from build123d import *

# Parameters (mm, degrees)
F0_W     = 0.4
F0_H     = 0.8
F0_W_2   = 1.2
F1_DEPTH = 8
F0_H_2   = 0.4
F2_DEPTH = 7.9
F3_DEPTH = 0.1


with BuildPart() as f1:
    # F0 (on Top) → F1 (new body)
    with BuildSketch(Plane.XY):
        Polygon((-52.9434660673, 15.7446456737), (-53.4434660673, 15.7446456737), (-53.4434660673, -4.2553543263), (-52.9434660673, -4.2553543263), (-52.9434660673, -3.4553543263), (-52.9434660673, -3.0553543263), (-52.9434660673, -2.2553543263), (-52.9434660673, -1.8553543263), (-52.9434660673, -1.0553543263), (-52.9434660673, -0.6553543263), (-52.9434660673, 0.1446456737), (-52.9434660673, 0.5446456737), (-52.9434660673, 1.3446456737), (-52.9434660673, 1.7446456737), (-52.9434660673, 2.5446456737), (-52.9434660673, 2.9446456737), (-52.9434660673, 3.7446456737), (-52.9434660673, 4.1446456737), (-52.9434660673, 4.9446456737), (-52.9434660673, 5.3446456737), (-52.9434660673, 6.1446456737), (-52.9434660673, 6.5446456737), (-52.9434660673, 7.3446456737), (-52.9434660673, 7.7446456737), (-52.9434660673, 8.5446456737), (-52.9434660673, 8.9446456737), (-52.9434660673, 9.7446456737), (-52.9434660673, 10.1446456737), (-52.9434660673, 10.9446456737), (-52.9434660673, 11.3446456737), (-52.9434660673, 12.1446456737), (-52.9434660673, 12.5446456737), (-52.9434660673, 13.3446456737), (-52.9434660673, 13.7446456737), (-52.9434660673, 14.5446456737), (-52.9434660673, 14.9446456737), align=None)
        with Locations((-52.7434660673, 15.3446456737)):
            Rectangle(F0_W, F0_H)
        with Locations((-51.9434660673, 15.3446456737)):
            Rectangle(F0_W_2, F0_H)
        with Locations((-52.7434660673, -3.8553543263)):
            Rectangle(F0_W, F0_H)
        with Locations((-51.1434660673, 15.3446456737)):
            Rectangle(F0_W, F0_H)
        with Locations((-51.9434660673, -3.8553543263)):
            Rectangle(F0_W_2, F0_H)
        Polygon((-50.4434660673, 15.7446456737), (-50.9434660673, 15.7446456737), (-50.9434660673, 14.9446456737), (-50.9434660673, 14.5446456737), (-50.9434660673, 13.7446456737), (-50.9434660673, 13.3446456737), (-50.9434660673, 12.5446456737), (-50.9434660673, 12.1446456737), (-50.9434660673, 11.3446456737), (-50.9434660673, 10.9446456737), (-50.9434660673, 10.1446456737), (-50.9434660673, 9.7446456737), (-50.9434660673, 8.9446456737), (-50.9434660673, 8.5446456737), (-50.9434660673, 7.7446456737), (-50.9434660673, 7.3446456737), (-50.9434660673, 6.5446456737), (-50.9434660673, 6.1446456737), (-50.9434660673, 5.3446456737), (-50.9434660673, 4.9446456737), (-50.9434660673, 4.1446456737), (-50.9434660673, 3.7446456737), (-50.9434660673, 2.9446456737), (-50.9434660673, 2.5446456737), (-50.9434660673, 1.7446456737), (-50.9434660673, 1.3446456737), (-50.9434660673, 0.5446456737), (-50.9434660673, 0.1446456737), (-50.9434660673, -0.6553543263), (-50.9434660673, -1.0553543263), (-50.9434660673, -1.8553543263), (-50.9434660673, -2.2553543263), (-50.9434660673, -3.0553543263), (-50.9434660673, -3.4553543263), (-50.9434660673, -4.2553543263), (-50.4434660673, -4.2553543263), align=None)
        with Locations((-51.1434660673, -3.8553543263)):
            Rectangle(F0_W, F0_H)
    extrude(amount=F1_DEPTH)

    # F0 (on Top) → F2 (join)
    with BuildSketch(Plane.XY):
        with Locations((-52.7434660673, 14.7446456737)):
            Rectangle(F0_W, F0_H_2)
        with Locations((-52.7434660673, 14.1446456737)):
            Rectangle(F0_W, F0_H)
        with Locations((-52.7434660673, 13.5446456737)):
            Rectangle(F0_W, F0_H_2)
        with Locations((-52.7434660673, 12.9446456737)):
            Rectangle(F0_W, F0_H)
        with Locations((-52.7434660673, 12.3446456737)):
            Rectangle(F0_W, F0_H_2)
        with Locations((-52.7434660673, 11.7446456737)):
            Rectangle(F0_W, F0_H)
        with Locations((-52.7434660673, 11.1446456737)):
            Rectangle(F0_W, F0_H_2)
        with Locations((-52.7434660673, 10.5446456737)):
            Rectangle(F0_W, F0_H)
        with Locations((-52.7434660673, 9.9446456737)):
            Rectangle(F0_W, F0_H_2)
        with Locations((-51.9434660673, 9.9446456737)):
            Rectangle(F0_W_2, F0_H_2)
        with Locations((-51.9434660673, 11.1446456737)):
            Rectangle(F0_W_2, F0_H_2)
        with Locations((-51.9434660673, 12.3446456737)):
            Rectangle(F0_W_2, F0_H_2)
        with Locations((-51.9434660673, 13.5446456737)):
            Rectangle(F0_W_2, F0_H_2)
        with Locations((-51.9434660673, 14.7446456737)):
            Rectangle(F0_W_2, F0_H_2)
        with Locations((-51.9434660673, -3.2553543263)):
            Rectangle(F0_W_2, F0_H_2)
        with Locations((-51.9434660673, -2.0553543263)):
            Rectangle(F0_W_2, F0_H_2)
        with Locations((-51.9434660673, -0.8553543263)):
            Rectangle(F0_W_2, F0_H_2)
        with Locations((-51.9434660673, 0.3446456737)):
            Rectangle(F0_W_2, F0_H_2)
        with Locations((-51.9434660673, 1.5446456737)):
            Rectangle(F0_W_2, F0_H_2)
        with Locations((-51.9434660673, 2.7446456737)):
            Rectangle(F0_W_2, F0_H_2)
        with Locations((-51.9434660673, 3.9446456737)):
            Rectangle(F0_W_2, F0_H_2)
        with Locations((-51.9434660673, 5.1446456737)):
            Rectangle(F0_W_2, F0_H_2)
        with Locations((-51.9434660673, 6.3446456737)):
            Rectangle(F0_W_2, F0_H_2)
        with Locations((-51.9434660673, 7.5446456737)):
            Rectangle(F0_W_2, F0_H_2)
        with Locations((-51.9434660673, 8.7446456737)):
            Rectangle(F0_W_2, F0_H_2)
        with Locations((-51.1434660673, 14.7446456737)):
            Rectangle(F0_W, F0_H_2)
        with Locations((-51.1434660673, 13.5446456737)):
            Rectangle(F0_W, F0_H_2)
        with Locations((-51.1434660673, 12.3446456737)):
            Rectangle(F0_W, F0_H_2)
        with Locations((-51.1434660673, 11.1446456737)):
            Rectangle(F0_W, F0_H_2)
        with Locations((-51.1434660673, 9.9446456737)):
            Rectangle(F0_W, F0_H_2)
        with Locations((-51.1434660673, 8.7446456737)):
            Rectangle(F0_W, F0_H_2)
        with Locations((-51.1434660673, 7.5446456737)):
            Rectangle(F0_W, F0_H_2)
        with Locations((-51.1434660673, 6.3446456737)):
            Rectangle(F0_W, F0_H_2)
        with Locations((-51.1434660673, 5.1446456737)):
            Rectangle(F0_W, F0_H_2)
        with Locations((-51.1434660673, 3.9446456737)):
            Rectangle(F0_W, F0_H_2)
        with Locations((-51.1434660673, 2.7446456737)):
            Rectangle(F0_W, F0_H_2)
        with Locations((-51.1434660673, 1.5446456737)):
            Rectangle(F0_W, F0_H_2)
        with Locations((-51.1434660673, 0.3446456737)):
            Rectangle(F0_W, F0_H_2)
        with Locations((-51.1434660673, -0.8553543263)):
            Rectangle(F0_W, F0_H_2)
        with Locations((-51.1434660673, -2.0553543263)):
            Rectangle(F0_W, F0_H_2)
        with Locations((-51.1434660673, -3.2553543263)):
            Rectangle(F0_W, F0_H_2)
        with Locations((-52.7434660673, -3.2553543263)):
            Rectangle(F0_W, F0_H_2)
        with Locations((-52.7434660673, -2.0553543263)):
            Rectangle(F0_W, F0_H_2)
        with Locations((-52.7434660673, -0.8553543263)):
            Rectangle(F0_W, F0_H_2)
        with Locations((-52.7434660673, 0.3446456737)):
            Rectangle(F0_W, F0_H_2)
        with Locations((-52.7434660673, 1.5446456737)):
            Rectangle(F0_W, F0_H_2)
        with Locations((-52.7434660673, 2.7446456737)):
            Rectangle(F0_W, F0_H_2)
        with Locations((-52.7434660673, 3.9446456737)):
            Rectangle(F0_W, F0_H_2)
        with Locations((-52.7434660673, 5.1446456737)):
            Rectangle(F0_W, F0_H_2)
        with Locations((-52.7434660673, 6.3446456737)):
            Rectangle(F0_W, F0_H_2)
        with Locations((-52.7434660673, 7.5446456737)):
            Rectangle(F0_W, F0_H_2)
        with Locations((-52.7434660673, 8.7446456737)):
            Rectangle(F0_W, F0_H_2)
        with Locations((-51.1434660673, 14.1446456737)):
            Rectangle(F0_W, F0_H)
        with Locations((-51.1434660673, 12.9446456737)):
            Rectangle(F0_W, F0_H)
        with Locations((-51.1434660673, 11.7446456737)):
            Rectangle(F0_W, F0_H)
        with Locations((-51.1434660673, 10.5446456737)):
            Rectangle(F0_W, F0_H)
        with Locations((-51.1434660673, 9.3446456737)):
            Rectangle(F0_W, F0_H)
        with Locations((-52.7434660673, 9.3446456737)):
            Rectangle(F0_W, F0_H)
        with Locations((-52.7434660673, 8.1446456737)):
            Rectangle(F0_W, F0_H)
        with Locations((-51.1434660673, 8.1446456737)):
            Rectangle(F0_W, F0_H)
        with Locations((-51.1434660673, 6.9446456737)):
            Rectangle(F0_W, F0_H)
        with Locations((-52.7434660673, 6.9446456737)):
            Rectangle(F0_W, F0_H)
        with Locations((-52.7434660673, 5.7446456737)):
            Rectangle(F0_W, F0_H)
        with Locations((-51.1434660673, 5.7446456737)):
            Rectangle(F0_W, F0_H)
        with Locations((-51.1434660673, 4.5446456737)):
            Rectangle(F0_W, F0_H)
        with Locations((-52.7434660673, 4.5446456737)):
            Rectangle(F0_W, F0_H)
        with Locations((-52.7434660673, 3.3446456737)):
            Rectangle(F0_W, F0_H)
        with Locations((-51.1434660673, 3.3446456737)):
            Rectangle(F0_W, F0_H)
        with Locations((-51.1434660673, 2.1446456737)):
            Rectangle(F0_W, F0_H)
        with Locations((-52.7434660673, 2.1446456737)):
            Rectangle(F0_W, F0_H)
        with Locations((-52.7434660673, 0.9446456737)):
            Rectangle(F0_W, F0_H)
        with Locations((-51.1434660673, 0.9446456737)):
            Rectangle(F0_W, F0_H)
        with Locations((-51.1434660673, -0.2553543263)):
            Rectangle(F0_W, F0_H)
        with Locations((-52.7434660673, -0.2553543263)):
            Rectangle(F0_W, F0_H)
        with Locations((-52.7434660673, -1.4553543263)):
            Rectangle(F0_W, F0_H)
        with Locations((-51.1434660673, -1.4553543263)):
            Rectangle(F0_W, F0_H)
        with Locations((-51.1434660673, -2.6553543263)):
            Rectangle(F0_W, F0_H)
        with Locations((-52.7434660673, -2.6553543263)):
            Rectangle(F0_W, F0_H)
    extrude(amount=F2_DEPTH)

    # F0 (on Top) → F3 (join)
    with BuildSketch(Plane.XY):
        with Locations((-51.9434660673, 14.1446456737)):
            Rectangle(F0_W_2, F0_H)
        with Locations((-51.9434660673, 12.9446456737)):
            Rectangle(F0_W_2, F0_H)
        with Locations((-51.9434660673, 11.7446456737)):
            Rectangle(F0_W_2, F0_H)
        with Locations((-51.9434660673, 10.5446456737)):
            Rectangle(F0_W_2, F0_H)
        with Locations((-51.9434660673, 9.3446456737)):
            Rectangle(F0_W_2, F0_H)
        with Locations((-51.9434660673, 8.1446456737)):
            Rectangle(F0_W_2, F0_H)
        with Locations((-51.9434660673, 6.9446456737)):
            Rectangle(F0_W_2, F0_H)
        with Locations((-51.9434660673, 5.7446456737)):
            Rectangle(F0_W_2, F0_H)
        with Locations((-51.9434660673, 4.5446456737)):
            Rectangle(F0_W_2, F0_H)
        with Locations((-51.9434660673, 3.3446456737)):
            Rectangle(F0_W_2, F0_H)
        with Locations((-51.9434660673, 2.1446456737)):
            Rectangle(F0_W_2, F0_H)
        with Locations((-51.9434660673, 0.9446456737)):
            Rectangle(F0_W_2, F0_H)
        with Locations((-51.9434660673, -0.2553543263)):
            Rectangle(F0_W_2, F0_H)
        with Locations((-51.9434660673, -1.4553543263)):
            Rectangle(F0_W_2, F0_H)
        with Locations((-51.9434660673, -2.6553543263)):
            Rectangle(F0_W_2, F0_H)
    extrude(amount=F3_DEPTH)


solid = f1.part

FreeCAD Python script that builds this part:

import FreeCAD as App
import Part
import Sketcher
from FreeCAD import Vector
Q = App.Units.Quantity

doc = App.newDocument("Part")
body = doc.addObject("PartDesign::Body", "Body")

sketch1 = body.newObject("Sketcher::SketchObject", "Sketch")
sketch1.AttachmentSupport = (doc.getObject("XY_Plane"), [""])
sketch1.MapMode = "FlatFace"
sketch1.addGeometry([
    Part.LineSegment(Vector(-53.4, 15.7, 0), Vector(-53.4, -4.3, 0)),
    Part.LineSegment(Vector(-53.4, -4.3, 0), Vector(-50.4, -4.3, 0)),
    Part.LineSegment(Vector(-50.4, -4.3, 0), Vector(-50.4, 15.7, 0)),
    Part.LineSegment(Vector(-50.4, 15.7, 0), Vector(-53.4, 15.7, 0)),
    Part.LineSegment(Vector(-52.9, -3.5, 0), Vector(-52.9, 14.9, 0)),
    Part.LineSegment(Vector(-52.9, 14.9, 0), Vector(-50.9, 14.9, 0)),
    Part.LineSegment(Vector(-50.9, 14.9, 0), Vector(-50.9, -3.5, 0)),
    Part.LineSegment(Vector(-50.9, -3.5, 0), Vector(-52.9, -3.5, 0)),
], False)
sketch1.addConstraint([
    Sketcher.Constraint("Coincident", 0, 2, 1, 1),
    Sketcher.Constraint("Coincident", 1, 2, 2, 1),
    Sketcher.Constraint("Coincident", 2, 2, 3, 1),
    Sketcher.Constraint("Coincident", 3, 2, 0, 1),
    Sketcher.Constraint("Coincident", 4, 2, 5, 1),
    Sketcher.Constraint("Coincident", 5, 2, 6, 1),
    Sketcher.Constraint("Coincident", 6, 2, 7, 1),
    Sketcher.Constraint("Coincident", 7, 2, 4, 1),
    Sketcher.Constraint("Vertical", 0),
    Sketcher.Constraint("Horizontal", 1),
    Sketcher.Constraint("Vertical", 2),
    Sketcher.Constraint("Horizontal", 3),
    Sketcher.Constraint("Vertical", 4),
    Sketcher.Constraint("Horizontal", 5),
    Sketcher.Constraint("Vertical", 6),
    Sketcher.Constraint("Horizontal", 7),
    Sketcher.Constraint("DistanceX", 1, 1, 1, 2, Q("3 mm")),
    Sketcher.Constraint("DistanceX", 5, 1, 5, 2, Q("2 mm")),
    Sketcher.Constraint("DistanceY", 0, 2, 0, 1, Q("20 mm")),
    Sketcher.Constraint("DistanceY", 4, 1, 4, 2, Q("18.4 mm")),
    Sketcher.Constraint("DistanceX", 3, 2, 4, 2, Q("0.5 mm")),
    Sketcher.Constraint("DistanceY", 4, 2, 3, 2, Q("0.8 mm")),
    Sketcher.Constraint("DistanceX", 0, 2, -1, 1, Q("53.443466 mm")),
    Sketcher.Constraint("DistanceY", 0, 2, -1, 1, Q("4.255354 mm")),
])
pad1 = body.newObject("PartDesign::Pad", "Pad")
pad1.Profile = sketch1
pad1.Length = 8

sketch2 = body.newObject("Sketcher::SketchObject", "Sketch001")
sketch2.AttachmentSupport = (doc.getObject("XY_Plane"), [""])
sketch2.MapMode = "FlatFace"
sketch2.addGeometry([
    Part.LineSegment(Vector(-52.9, 14.9, 0), Vector(-52.9, -3.5, 0)),
    Part.LineSegment(Vector(-52.9, -3.5, 0), Vector(-50.9, -3.5, 0)),
    Part.LineSegment(Vector(-50.9, -3.5, 0), Vector(-50.9, 14.9, 0)),
    Part.LineSegment(Vector(-50.9, 14.9, 0), Vector(-52.9, 14.9, 0)),
    Part.LineSegment(Vector(-52.5, -2.3, 0), Vector(-51.3, -2.3, 0)),
    Part.LineSegment(Vector(-51.3, -2.3, 0), Vector(-51.3, -3.1, 0)),
    Part.LineSegment(Vector(-51.3, -3.1, 0), Vector(-52.5, -3.1, 0)),
    Part.LineSegment(Vector(-52.5, -3.1, 0), Vector(-52.5, -2.3, 0)),
    Part.LineSegment(Vector(-51.3, -1.9, 0), Vector(-52.5, -1.9, 0)),
    Part.LineSegment(Vector(-52.5, -1.9, 0), Vector(-52.5, -1.1, 0)),
    Part.LineSegment(Vector(-52.5, -1.1, 0), Vector(-51.3, -1.1, 0)),
    Part.LineSegment(Vector(-51.3, -1.1, 0), Vector(-51.3, -1.9, 0)),
    Part.LineSegment(Vector(-52.5, 0.1, 0), Vector(-51.3, 0.1, 0)),
    Part.LineSegment(Vector(-51.3, 0.1, 0), Vector(-51.3, -0.7, 0)),
    Part.LineSegment(Vector(-51.3, -0.7, 0), Vector(-52.5, -0.7, 0)),
    Part.LineSegment(Vector(-52.5, -0.7, 0), Vector(-52.5, 0.1, 0)),
    Part.LineSegment(Vector(-51.3, 0.5, 0), Vector(-52.5, 0.5, 0)),
    Part.LineSegment(Vector(-52.5, 0.5, 0), Vector(-52.5, 1.3, 0)),
    Part.LineSegment(Vector(-52.5, 1.3, 0), Vector(-51.3, 1.3, 0)),
    Part.LineSegment(Vector(-51.3, 1.3, 0), Vector(-51.3, 0.5, 0)),
    Part.LineSegment(Vector(-52.5, 2.5, 0), Vector(-51.3, 2.5, 0)),
    Part.LineSegment(Vector(-51.3, 2.5, 0), Vector(-51.3, 1.7, 0)),
    Part.LineSegment(Vector(-51.3, 1.7, 0), Vector(-52.5, 1.7, 0)),
    Part.LineSegment(Vector(-52.5, 1.7, 0), Vector(-52.5, 2.5, 0)),
    Part.LineSegment(Vector(-51.3, 2.9, 0), Vector(-52.5, 2.9, 0)),
    Part.LineSegment(Vector(-52.5, 2.9, 0), Vector(-52.5, 3.7, 0)),
    Part.LineSegment(Vector(-52.5, 3.7, 0), Vector(-51.3, 3.7, 0)),
    Part.LineSegment(Vector(-51.3, 3.7, 0), Vector(-51.3, 2.9, 0)),
    Part.LineSegment(Vector(-52.5, 4.9, 0), Vector(-51.3, 4.9, 0)),
    Part.LineSegment(Vector(-51.3, 4.9, 0), Vector(-51.3, 4.1, 0)),
    Part.LineSegment(Vector(-51.3, 4.1, 0), Vector(-52.5, 4.1, 0)),
    Part.LineSegment(Vector(-52.5, 4.1, 0), Vector(-52.5, 4.9, 0)),
    Part.LineSegment(Vector(-51.3, 5.3, 0), Vector(-52.5, 5.3, 0)),
    Part.LineSegment(Vector(-52.5, 5.3, 0), Vector(-52.5, 6.1, 0)),
    Part.LineSegment(Vector(-52.5, 6.1, 0), Vector(-51.3, 6.1, 0)),
    Part.LineSegment(Vector(-51.3, 6.1, 0), Vector(-51.3, 5.3, 0)),
    Part.LineSegment(Vector(-52.5, 7.3, 0), Vector(-51.3, 7.3, 0)),
    Part.LineSegment(Vector(-51.3, 7.3, 0), Vector(-51.3, 6.5, 0)),
    Part.LineSegment(Vector(-51.3, 6.5, 0), Vector(-52.5, 6.5, 0)),
    Part.LineSegment(Vector(-52.5, 6.5, 0), Vector(-52.5, 7.3, 0)),
    Part.LineSegment(Vector(-51.3, 7.7, 0), Vector(-52.5, 7.7, 0)),
    Part.LineSegment(Vector(-52.5, 7.7, 0), Vector(-52.5, 8.5, 0)),
    Part.LineSegment(Vector(-52.5, 8.5, 0), Vector(-51.3, 8.5, 0)),
    Part.LineSegment(Vector(-51.3, 8.5, 0), Vector(-51.3, 7.7, 0)),
    Part.LineSegment(Vector(-52.5, 9.7, 0), Vector(-51.3, 9.7, 0)),
    Part.LineSegment(Vector(-51.3, 9.7, 0), Vector(-51.3, 8.9, 0)),
    Part.LineSegment(Vector(-51.3, 8.9, 0), Vector(-52.5, 8.9, 0)),
    Part.LineSegment(Vector(-52.5, 8.9, 0), Vector(-52.5, 9.7, 0)),
    Part.LineSegment(Vector(-51.3, 10.1, 0), Vector(-52.5, 10.1, 0)),
    Part.LineSegment(Vector(-52.5, 10.1, 0), Vector(-52.5, 10.9, 0)),
    Part.LineSegment(Vector(-52.5, 10.9, 0), Vector(-51.3, 10.9, 0)),
    Part.LineSegment(Vector(-51.3, 10.9, 0), Vector(-51.3, 10.1, 0)),
    Part.LineSegment(Vector(-51.3, 11.3, 0), Vector(-52.5, 11.3, 0)),
    Part.LineSegment(Vector(-52.5, 11.3, 0), Vector(-52.5, 12.1, 0)),
    Part.LineSegment(Vector(-52.5, 12.1, 0), Vector(-51.3, 12.1, 0)),
    Part.LineSegment(Vector(-51.3, 12.1, 0), Vector(-51.3, 11.3, 0)),
    Part.LineSegment(Vector(-51.3, 12.5, 0), Vector(-52.5, 12.5, 0)),
    Part.LineSegment(Vector(-52.5, 12.5, 0), Vector(-52.5, 13.3, 0)),
    Part.LineSegment(Vector(-52.5, 13.3, 0), Vector(-51.3, 13.3, 0)),
    Part.LineSegment(Vector(-51.3, 13.3, 0), Vector(-51.3, 12.5, 0)),
    Part.LineSegment(Vector(-51.3, 13.7, 0), Vector(-52.5, 13.7, 0)),
    Part.LineSegment(Vector(-52.5, 13.7, 0), Vector(-52.5, 14.5, 0)),
    Part.LineSegment(Vector(-52.5, 14.5, 0), Vector(-51.3, 14.5, 0)),
    Part.LineSegment(Vector(-51.3, 14.5, 0), Vector(-51.3, 13.7, 0)),
], False)
sketch2.addConstraint([
    Sketcher.Constraint("Coincident", 0, 2, 1, 1),
    Sketcher.Constraint("Coincident", 1, 2, 2, 1),
    Sketcher.Constraint("Coincident", 2, 2, 3, 1),
    Sketcher.Constraint("Coincident", 3, 2, 0, 1),
    Sketcher.Constraint("Coincident", 4, 2, 5, 1),
    Sketcher.Constraint("Coincident", 5, 2, 6, 1),
    Sketcher.Constraint("Coincident", 6, 2, 7, 1),
    Sketcher.Constraint("Coincident", 7, 2, 4, 1),
    Sketcher.Constraint("Coincident", 8, 2, 9, 1),
    Sketcher.Constraint("Coincident", 9, 2, 10, 1),
    Sketcher.Constraint("Coincident", 10, 2, 11, 1),
    Sketcher.Constraint("Coincident", 11, 2, 8, 1),
    Sketcher.Constraint("Coincident", 12, 2, 13, 1),
    Sketcher.Constraint("Coincident", 13, 2, 14, 1),
    Sketcher.Constraint("Coincident", 14, 2, 15, 1),
    Sketcher.Constraint("Coincident", 15, 2, 12, 1),
    Sketcher.Constraint("Coincident", 16, 2, 17, 1),
    Sketcher.Constraint("Coincident", 17, 2, 18, 1),
    Sketcher.Constraint("Coincident", 18, 2, 19, 1),
    Sketcher.Constraint("Coincident", 19, 2, 16, 1),
    Sketcher.Constraint("Coincident", 20, 2, 21, 1),
    Sketcher.Constraint("Coincident", 21, 2, 22, 1),
    Sketcher.Constraint("Coincident", 22, 2, 23, 1),
    Sketcher.Constraint("Coincident", 23, 2, 20, 1),
    Sketcher.Constraint("Coincident", 24, 2, 25, 1),
    Sketcher.Constraint("Coincident", 25, 2, 26, 1),
    Sketcher.Constraint("Coincident", 26, 2, 27, 1),
    Sketcher.Constraint("Coincident", 27, 2, 24, 1),
    Sketcher.Constraint("Coincident", 28, 2, 29, 1),
    Sketcher.Constraint("Coincident", 29, 2, 30, 1),
    Sketcher.Constraint("Coincident", 30, 2, 31, 1),
    Sketcher.Constraint("Coincident", 31, 2, 28, 1),
    Sketcher.Constraint("Coincident", 32, 2, 33, 1),
    Sketcher.Constraint("Coincident", 33, 2, 34, 1),
    Sketcher.Constraint("Coincident", 34, 2, 35, 1),
    Sketcher.Constraint("Coincident", 35, 2, 32, 1),
    Sketcher.Constraint("Coincident", 36, 2, 37, 1),
    Sketcher.Constraint("Coincident", 37, 2, 38, 1),
    Sketcher.Constraint("Coincident", 38, 2, 39, 1),
    Sketcher.Constraint("Coincident", 39, 2, 36, 1),
    Sketcher.Constraint("Coincident", 40, 2, 41, 1),
    Sketcher.Constraint("Coincident", 41, 2, 42, 1),
    Sketcher.Constraint("Coincident", 42, 2, 43, 1),
    Sketcher.Constraint("Coincident", 43, 2, 40, 1),
    Sketcher.Constraint("Coincident", 44, 2, 45, 1),
    Sketcher.Constraint("Coincident", 45, 2, 46, 1),
    Sketcher.Constraint("Coincident", 46, 2, 47, 1),
    Sketcher.Constraint("Coincident", 47, 2, 44, 1),
    Sketcher.Constraint("Coincident", 48, 2, 49, 1),
    Sketcher.Constraint("Coincident", 49, 2, 50, 1),
    Sketcher.Constraint("Coincident", 50, 2, 51, 1),
    Sketcher.Constraint("Coincident", 51, 2, 48, 1),
    Sketcher.Constraint("Coincident", 52, 2, 53, 1),
    Sketcher.Constraint("Coincident", 53, 2, 54, 1),
    Sketcher.Constraint("Coincident", 54, 2, 55, 1),
    Sketcher.Constraint("Coincident", 55, 2, 52, 1),
    Sketcher.Constraint("Coincident", 56, 2, 57, 1),
    Sketcher.Constraint("Coincident", 57, 2, 58, 1),
    Sketcher.Constraint("Coincident", 58, 2, 59, 1),
    Sketcher.Constraint("Coincident", 59, 2, 56, 1),
    Sketcher.Constraint("Coincident", 60, 2, 61, 1),
    Sketcher.Constraint("Coincident", 61, 2, 62, 1),
    Sketcher.Constraint("Coincident", 62, 2, 63, 1),
    Sketcher.Constraint("Coincident", 63, 2, 60, 1),
    Sketcher.Constraint("Vertical", 0),
    Sketcher.Constraint("Horizontal", 1),
    Sketcher.Constraint("Vertical", 2),
    Sketcher.Constraint("Horizontal", 3),
    Sketcher.Constraint("Horizontal", 4),
    Sketcher.Constraint("Vertical", 5),
    Sketcher.Constraint("Horizontal", 6),
    Sketcher.Constraint("Vertical", 7),
    Sketcher.Constraint("Horizontal", 8),
    Sketcher.Constraint("Vertical", 9),
    Sketcher.Constraint("Horizontal", 10),
    Sketcher.Constraint("Vertical", 11),
    Sketcher.Constraint("Horizontal", 12),
    Sketcher.Constraint("Vertical", 13),
    Sketcher.Constraint("Horizontal", 14),
    Sketcher.Constraint("Vertical", 15),
    Sketcher.Constraint("Horizontal", 16),
    Sketcher.Constraint("Vertical", 17),
    Sketcher.Constraint("Horizontal", 18),
    Sketcher.Constraint("Vertical", 19),
    Sketcher.Constraint("Horizontal", 20),
    Sketcher.Constraint("Vertical", 21),
    Sketcher.Constraint("Horizontal", 22),
    Sketcher.Constraint("Vertical", 23),
    Sketcher.Constraint("Horizontal", 24),
    Sketcher.Constraint("Vertical", 25),
    Sketcher.Constraint("Horizontal", 26),
    Sketcher.Constraint("Vertical", 27),
    Sketcher.Constraint("Horizontal", 28),
    Sketcher.Constraint("Vertical", 29),
    Sketcher.Constraint("Horizontal", 30),
    Sketcher.Constraint("Vertical", 31),
    Sketcher.Constraint("Horizontal", 32),
    Sketcher.Constraint("Vertical", 33),
    Sketcher.Constraint("Horizontal", 34),
    Sketcher.Constraint("Vertical", 35),
    Sketcher.Constraint("Horizontal", 36),
    Sketcher.Constraint("Vertical", 37),
    Sketcher.Constraint("Horizontal", 38),
    Sketcher.Constraint("Vertical", 39),
    Sketcher.Constraint("Horizontal", 40),
    Sketcher.Constraint("Vertical", 41),
    Sketcher.Constraint("Horizontal", 42),
    Sketcher.Constraint("Vertical", 43),
    Sketcher.Constraint("Horizontal", 44),
    Sketcher.Constraint("Vertical", 45),
    Sketcher.Constraint("Horizontal", 46),
    Sketcher.Constraint("Vertical", 47),
    Sketcher.Constraint("Horizontal", 48),
    Sketcher.Constraint("Vertical", 49),
    Sketcher.Constraint("Horizontal", 50),
    Sketcher.Constraint("Vertical", 51),
    Sketcher.Constraint("Horizontal", 52),
    Sketcher.Constraint("Vertical", 53),
    Sketcher.Constraint("Horizontal", 54),
    Sketcher.Constraint("Vertical", 55),
    Sketcher.Constraint("Horizontal", 56),
    Sketcher.Constraint("Vertical", 57),
    Sketcher.Constraint("Horizontal", 58),
    Sketcher.Constraint("Vertical", 59),
    Sketcher.Constraint("Horizontal", 60),
    Sketcher.Constraint("Vertical", 61),
    Sketcher.Constraint("Horizontal", 62),
    Sketcher.Constraint("Vertical", 63),
    Sketcher.Constraint("Vertical", 7, 2, 8, 2),
    Sketcher.Constraint("Vertical", 5, 2, 10, 2),
    Sketcher.Constraint("Vertical", 11, 2, 12, 2),
    Sketcher.Constraint("Vertical", 9, 2, 14, 2),
    Sketcher.Constraint("Vertical", 15, 2, 16, 2),
    Sketcher.Constraint("Vertical", 13, 2, 18, 2),
    Sketcher.Constraint("Vertical", 19, 2, 20, 2),
    Sketcher.Constraint("Vertical", 17, 2, 22, 2),
    Sketcher.Constraint("Vertical", 23, 2, 24, 2),
    Sketcher.Constraint("Vertical", 21, 2, 26, 2),
    Sketcher.Constraint("Vertical", 27, 2, 28, 2),
    Sketcher.Constraint("Vertical", 25, 2, 30, 2),
    Sketcher.Constraint("Vertical", 31, 2, 32, 2),
    Sketcher.Constraint("Vertical", 29, 2, 34, 2),
    Sketcher.Constraint("Vertical", 35, 2, 36, 2),
    Sketcher.Constraint("Vertical", 33, 2, 38, 2),
    Sketcher.Constraint("Vertical", 39, 2, 40, 2),
    Sketcher.Constraint("Vertical", 37, 2, 42, 2),
    Sketcher.Constraint("Vertical", 43, 2, 44, 2),
    Sketcher.Constraint("Vertical", 41, 2, 46, 2),
    Sketcher.Constraint("Vertical", 47, 2, 48, 2),
    Sketcher.Constraint("Vertical", 45, 2, 50, 2),
    Sketcher.Constraint("Vertical", 49, 2, 52, 2),
    Sketcher.Constraint("Vertical", 51, 2, 54, 2),
    Sketcher.Constraint("Vertical", 53, 2, 56, 2),
    Sketcher.Constraint("Vertical", 55, 2, 58, 2),
    Sketcher.Constraint("Vertical", 57, 2, 60, 2),
    Sketcher.Constraint("Vertical", 59, 2, 62, 2),
    Sketcher.Constraint("Equal", 7, 9),
    Sketcher.Constraint("Equal", 11, 13),
    Sketcher.Constraint("Equal", 15, 17),
    Sketcher.Constraint("Equal", 19, 21),
    Sketcher.Constraint("Equal", 23, 25),
    Sketcher.Constraint("Equal", 27, 29),
    Sketcher.Constraint("Equal", 31, 33),
    Sketcher.Constraint("Equal", 35, 37),
    Sketcher.Constraint("Equal", 39, 41),
    Sketcher.Constraint("Equal", 43, 45),
    Sketcher.Constraint("Equal", 47, 49),
    Sketcher.Constraint("Equal", 51, 53),
    Sketcher.Constraint("Equal", 55, 57),
    Sketcher.Constraint("Equal", 59, 61),
    Sketcher.Constraint("DistanceX", 1, 1, 1, 2, Q("2 mm")),
    Sketcher.Constraint("DistanceX", 4, 1, 4, 2, Q("1.2 mm")),
    Sketcher.Constraint("DistanceY", 0, 2, 0, 1, Q("18.4 mm")),
    Sketcher.Constraint("DistanceY", 5, 2, 5, 1, Q("0.8 mm")),
    Sketcher.Constraint("DistanceX", 0, 2, -1, 1, Q("52.943466 mm")),
    Sketcher.Constraint("DistanceY", 0, 2, -1, 1, Q("3.455354 mm")),
    Sketcher.Constraint("DistanceX", 4, 2, -1, 1, Q("51.343466 mm")),
    Sketcher.Constraint("DistanceY", 4, 2, -1, 1, Q("2.255354 mm")),
    Sketcher.Constraint("DistanceY", 8, 2, -1, 1, Q("1.855354 mm")),
    Sketcher.Constraint("DistanceY", -1, 1, 12, 2, Q("0.144646 mm")),
    Sketcher.Constraint("DistanceY", -1, 1, 16, 2, Q("0.544646 mm")),
    Sketcher.Constraint("DistanceY", -1, 1, 20, 2, Q("2.544646 mm")),
    Sketcher.Constraint("DistanceY", -1, 1, 24, 2, Q("2.944646 mm")),
    Sketcher.Constraint("DistanceY", -1, 1, 28, 2, Q("4.944646 mm")),
    Sketcher.Constraint("DistanceY", -1, 1, 32, 2, Q("5.344646 mm")),
    Sketcher.Constraint("DistanceY", -1, 1, 36, 2, Q("7.344646 mm")),
    Sketcher.Constraint("DistanceY", -1, 1, 40, 2, Q("7.744646 mm")),
    Sketcher.Constraint("DistanceY", -1, 1, 44, 2, Q("9.744646 mm")),
    Sketcher.Constraint("DistanceY", -1, 1, 48, 2, Q("10.144646 mm")),
    Sketcher.Constraint("DistanceY", -1, 1, 52, 2, Q("11.344646 mm")),
    Sketcher.Constraint("DistanceY", -1, 1, 56, 2, Q("12.544646 mm")),
    Sketcher.Constraint("DistanceY", -1, 1, 60, 2, Q("13.744646 mm")),
])
pad2 = body.newObject("PartDesign::Pad", "Pad001")
pad2.Profile = sketch2
pad2.Length = 7.9

sketch3 = body.newObject("Sketcher::SketchObject", "Sketch002")
sketch3.AttachmentSupport = (doc.getObject("XY_Plane"), [""])
sketch3.MapMode = "FlatFace"
sketch3.addGeometry([
    Part.LineSegment(Vector(-52.5, 14.5, 0), Vector(-52.5, 13.7, 0)),
    Part.LineSegment(Vector(-52.5, 13.7, 0), Vector(-51.3, 13.7, 0)),
    Part.LineSegment(Vector(-51.3, 13.7, 0), Vector(-51.3, 14.5, 0)),
    Part.LineSegment(Vector(-51.3, 14.5, 0), Vector(-52.5, 14.5, 0)),
    Part.LineSegment(Vector(-52.5, 13.3, 0), Vector(-52.5, 12.5, 0)),
    Part.LineSegment(Vector(-52.5, 12.5, 0), Vector(-51.3, 12.5, 0)),
    Part.LineSegment(Vector(-51.3, 12.5, 0), Vector(-51.3, 13.3, 0)),
    Part.LineSegment(Vector(-51.3, 13.3, 0), Vector(-52.5, 13.3, 0)),
    Part.LineSegment(Vector(-52.5, 12.1, 0), Vector(-52.5, 11.3, 0)),
    Part.LineSegment(Vector(-52.5, 11.3, 0), Vector(-51.3, 11.3, 0)),
    Part.LineSegment(Vector(-51.3, 11.3, 0), Vector(-51.3, 12.1, 0)),
    Part.LineSegment(Vector(-51.3, 12.1, 0), Vector(-52.5, 12.1, 0)),
    Part.LineSegment(Vector(-52.5, 10.9, 0), Vector(-52.5, 10.1, 0)),
    Part.LineSegment(Vector(-52.5, 10.1, 0), Vector(-51.3, 10.1, 0)),
    Part.LineSegment(Vector(-51.3, 10.1, 0), Vector(-51.3, 10.9, 0)),
    Part.LineSegment(Vector(-51.3, 10.9, 0), Vector(-52.5, 10.9, 0)),
    Part.LineSegment(Vector(-52.5, 9.7, 0), Vector(-52.5, 8.9, 0)),
    Part.LineSegment(Vector(-52.5, 8.9, 0), Vector(-51.3, 8.9, 0)),
    Part.LineSegment(Vector(-51.3, 8.9, 0), Vector(-51.3, 9.7, 0)),
    Part.LineSegment(Vector(-51.3, 9.7, 0), Vector(-52.5, 9.7, 0)),
    Part.LineSegment(Vector(-52.5, 8.5, 0), Vector(-52.5, 7.7, 0)),
    Part.LineSegment(Vector(-52.5, 7.7, 0), Vector(-51.3, 7.7, 0)),
    Part.LineSegment(Vector(-51.3, 7.7, 0), Vector(-51.3, 8.5, 0)),
    Part.LineSegment(Vector(-51.3, 8.5, 0), Vector(-52.5, 8.5, 0)),
    Part.LineSegment(Vector(-52.5, 7.3, 0), Vector(-52.5, 6.5, 0)),
    Part.LineSegment(Vector(-52.5, 6.5, 0), Vector(-51.3, 6.5, 0)),
    Part.LineSegment(Vector(-51.3, 6.5, 0), Vector(-51.3, 7.3, 0)),
    Part.LineSegment(Vector(-51.3, 7.3, 0), Vector(-52.5, 7.3, 0)),
    Part.LineSegment(Vector(-52.5, 6.1, 0), Vector(-52.5, 5.3, 0)),
    Part.LineSegment(Vector(-52.5, 5.3, 0), Vector(-51.3, 5.3, 0)),
    Part.LineSegment(Vector(-51.3, 5.3, 0), Vector(-51.3, 6.1, 0)),
    Part.LineSegment(Vector(-51.3, 6.1, 0), Vector(-52.5, 6.1, 0)),
    Part.LineSegment(Vector(-52.5, 4.9, 0), Vector(-52.5, 4.1, 0)),
    Part.LineSegment(Vector(-52.5, 4.1, 0), Vector(-51.3, 4.1, 0)),
    Part.LineSegment(Vector(-51.3, 4.1, 0), Vector(-51.3, 4.9, 0)),
    Part.LineSegment(Vector(-51.3, 4.9, 0), Vector(-52.5, 4.9, 0)),
    Part.LineSegment(Vector(-52.5, 3.7, 0), Vector(-52.5, 2.9, 0)),
    Part.LineSegment(Vector(-52.5, 2.9, 0), Vector(-51.3, 2.9, 0)),
    Part.LineSegment(Vector(-51.3, 2.9, 0), Vector(-51.3, 3.7, 0)),
    Part.LineSegment(Vector(-51.3, 3.7, 0), Vector(-52.5, 3.7, 0)),
    Part.LineSegment(Vector(-52.5, 2.5, 0), Vector(-52.5, 1.7, 0)),
    Part.LineSegment(Vector(-52.5, 1.7, 0), Vector(-51.3, 1.7, 0)),
    Part.LineSegment(Vector(-51.3, 1.7, 0), Vector(-51.3, 2.5, 0)),
    Part.LineSegment(Vector(-51.3, 2.5, 0), Vector(-52.5, 2.5, 0)),
    Part.LineSegment(Vector(-52.5, 1.3, 0), Vector(-52.5, 0.5, 0)),
    Part.LineSegment(Vector(-52.5, 0.5, 0), Vector(-51.3, 0.5, 0)),
    Part.LineSegment(Vector(-51.3, 0.5, 0), Vector(-51.3, 1.3, 0)),
    Part.LineSegment(Vector(-51.3, 1.3, 0), Vector(-52.5, 1.3, 0)),
    Part.LineSegment(Vector(-52.5, 0.1, 0), Vector(-52.5, -0.7, 0)),
    Part.LineSegment(Vector(-52.5, -0.7, 0), Vector(-51.3, -0.7, 0)),
    Part.LineSegment(Vector(-51.3, -0.7, 0), Vector(-51.3, 0.1, 0)),
    Part.LineSegment(Vector(-51.3, 0.1, 0), Vector(-52.5, 0.1, 0)),
    Part.LineSegment(Vector(-52.5, -1.1, 0), Vector(-52.5, -1.9, 0)),
    Part.LineSegment(Vector(-52.5, -1.9, 0), Vector(-51.3, -1.9, 0)),
    Part.LineSegment(Vector(-51.3, -1.9, 0), Vector(-51.3, -1.1, 0)),
    Part.LineSegment(Vector(-51.3, -1.1, 0), Vector(-52.5, -1.1, 0)),
    Part.LineSegment(Vector(-52.5, -2.3, 0), Vector(-52.5, -3.1, 0)),
    Part.LineSegment(Vector(-52.5, -3.1, 0), Vector(-51.3, -3.1, 0)),
    Part.LineSegment(Vector(-51.3, -3.1, 0), Vector(-51.3, -2.3, 0)),
    Part.LineSegment(Vector(-51.3, -2.3, 0), Vector(-52.5, -2.3, 0)),
], False)
sketch3.addConstraint([
    Sketcher.Constraint("Coincident", 0, 2, 1, 1),
    Sketcher.Constraint("Coincident", 1, 2, 2, 1),
    Sketcher.Constraint("Coincident", 2, 2, 3, 1),
    Sketcher.Constraint("Coincident", 3, 2, 0, 1),
    Sketcher.Constraint("Coincident", 4, 2, 5, 1),
    Sketcher.Constraint("Coincident", 5, 2, 6, 1),
    Sketcher.Constraint("Coincident", 6, 2, 7, 1),
    Sketcher.Constraint("Coincident", 7, 2, 4, 1),
    Sketcher.Constraint("Coincident", 8, 2, 9, 1),
    Sketcher.Constraint("Coincident", 9, 2, 10, 1),
    Sketcher.Constraint("Coincident", 10, 2, 11, 1),
    Sketcher.Constraint("Coincident", 11, 2, 8, 1),
    Sketcher.Constraint("Coincident", 12, 2, 13, 1),
    Sketcher.Constraint("Coincident", 13, 2, 14, 1),
    Sketcher.Constraint("Coincident", 14, 2, 15, 1),
    Sketcher.Constraint("Coincident", 15, 2, 12, 1),
    Sketcher.Constraint("Coincident", 16, 2, 17, 1),
    Sketcher.Constraint("Coincident", 17, 2, 18, 1),
    Sketcher.Constraint("Coincident", 18, 2, 19, 1),
    Sketcher.Constraint("Coincident", 19, 2, 16, 1),
    Sketcher.Constraint("Coincident", 20, 2, 21, 1),
    Sketcher.Constraint("Coincident", 21, 2, 22, 1),
    Sketcher.Constraint("Coincident", 22, 2, 23, 1),
    Sketcher.Constraint("Coincident", 23, 2, 20, 1),
    Sketcher.Constraint("Coincident", 24, 2, 25, 1),
    Sketcher.Constraint("Coincident", 25, 2, 26, 1),
    Sketcher.Constraint("Coincident", 26, 2, 27, 1),
    Sketcher.Constraint("Coincident", 27, 2, 24, 1),
    Sketcher.Constraint("Coincident", 28, 2, 29, 1),
    Sketcher.Constraint("Coincident", 29, 2, 30, 1),
    Sketcher.Constraint("Coincident", 30, 2, 31, 1),
    Sketcher.Constraint("Coincident", 31, 2, 28, 1),
    Sketcher.Constraint("Coincident", 32, 2, 33, 1),
    Sketcher.Constraint("Coincident", 33, 2, 34, 1),
    Sketcher.Constraint("Coincident", 34, 2, 35, 1),
    Sketcher.Constraint("Coincident", 35, 2, 32, 1),
    Sketcher.Constraint("Coincident", 36, 2, 37, 1),
    Sketcher.Constraint("Coincident", 37, 2, 38, 1),
    Sketcher.Constraint("Coincident", 38, 2, 39, 1),
    Sketcher.Constraint("Coincident", 39, 2, 36, 1),
    Sketcher.Constraint("Coincident", 40, 2, 41, 1),
    Sketcher.Constraint("Coincident", 41, 2, 42, 1),
    Sketcher.Constraint("Coincident", 42, 2, 43, 1),
    Sketcher.Constraint("Coincident", 43, 2, 40, 1),
    Sketcher.Constraint("Coincident", 44, 2, 45, 1),
    Sketcher.Constraint("Coincident", 45, 2, 46, 1),
    Sketcher.Constraint("Coincident", 46, 2, 47, 1),
    Sketcher.Constraint("Coincident", 47, 2, 44, 1),
    Sketcher.Constraint("Coincident", 48, 2, 49, 1),
    Sketcher.Constraint("Coincident", 49, 2, 50, 1),
    Sketcher.Constraint("Coincident", 50, 2, 51, 1),
    Sketcher.Constraint("Coincident", 51, 2, 48, 1),
    Sketcher.Constraint("Coincident", 52, 2, 53, 1),
    Sketcher.Constraint("Coincident", 53, 2, 54, 1),
    Sketcher.Constraint("Coincident", 54, 2, 55, 1),
    Sketcher.Constraint("Coincident", 55, 2, 52, 1),
    Sketcher.Constraint("Coincident", 56, 2, 57, 1),
    Sketcher.Constraint("Coincident", 57, 2, 58, 1),
    Sketcher.Constraint("Coincident", 58, 2, 59, 1),
    Sketcher.Constraint("Coincident", 59, 2, 56, 1),
    Sketcher.Constraint("Vertical", 0),
    Sketcher.Constraint("Horizontal", 1),
    Sketcher.Constraint("Vertical", 2),
    Sketcher.Constraint("Horizontal", 3),
    Sketcher.Constraint("Vertical", 4),
    Sketcher.Constraint("Horizontal", 5),
    Sketcher.Constraint("Vertical", 6),
    Sketcher.Constraint("Horizontal", 7),
    Sketcher.Constraint("Vertical", 8),
    Sketcher.Constraint("Horizontal", 9),
    Sketcher.Constraint("Vertical", 10),
    Sketcher.Constraint("Horizontal", 11),
    Sketcher.Constraint("Vertical", 12),
    Sketcher.Constraint("Horizontal", 13),
    Sketcher.Constraint("Vertical", 14),
    Sketcher.Constraint("Horizontal", 15),
    Sketcher.Constraint("Vertical", 16),
    Sketcher.Constraint("Horizontal", 17),
    Sketcher.Constraint("Vertical", 18),
    Sketcher.Constraint("Horizontal", 19),
    Sketcher.Constraint("Vertical", 20),
    Sketcher.Constraint("Horizontal", 21),
    Sketcher.Constraint("Vertical", 22),
    Sketcher.Constraint("Horizontal", 23),
    Sketcher.Constraint("Vertical", 24),
    Sketcher.Constraint("Horizontal", 25),
    Sketcher.Constraint("Vertical", 26),
    Sketcher.Constraint("Horizontal", 27),
    Sketcher.Constraint("Vertical", 28),
    Sketcher.Constraint("Horizontal", 29),
    Sketcher.Constraint("Vertical", 30),
    Sketcher.Constraint("Horizontal", 31),
    Sketcher.Constraint("Vertical", 32),
    Sketcher.Constraint("Horizontal", 33),
    Sketcher.Constraint("Vertical", 34),
    Sketcher.Constraint("Horizontal", 35),
    Sketcher.Constraint("Vertical", 36),
    Sketcher.Constraint("Horizontal", 37),
    Sketcher.Constraint("Vertical", 38),
    Sketcher.Constraint("Horizontal", 39),
    Sketcher.Constraint("Vertical", 40),
    Sketcher.Constraint("Horizontal", 41),
    Sketcher.Constraint("Vertical", 42),
    Sketcher.Constraint("Horizontal", 43),
    Sketcher.Constraint("Vertical", 44),
    Sketcher.Constraint("Horizontal", 45),
    Sketcher.Constraint("Vertical", 46),
    Sketcher.Constraint("Horizontal", 47),
    Sketcher.Constraint("Vertical", 48),
    Sketcher.Constraint("Horizontal", 49),
    Sketcher.Constraint("Vertical", 50),
    Sketcher.Constraint("Horizontal", 51),
    Sketcher.Constraint("Vertical", 52),
    Sketcher.Constraint("Horizontal", 53),
    Sketcher.Constraint("Vertical", 54),
    Sketcher.Constraint("Horizontal", 55),
    Sketcher.Constraint("Vertical", 56),
    Sketcher.Constraint("Horizontal", 57),
    Sketcher.Constraint("Vertical", 58),
    Sketcher.Constraint("Horizontal", 59),
    Sketcher.Constraint("Vertical", 3, 2, 4, 2),
    Sketcher.Constraint("Vertical", 2, 2, 5, 2),
    Sketcher.Constraint("Vertical", 7, 2, 8, 2),
    Sketcher.Constraint("Vertical", 6, 2, 9, 2),
    Sketcher.Constraint("Vertical", 11, 2, 12, 2),
    Sketcher.Constraint("Vertical", 10, 2, 13, 2),
    Sketcher.Constraint("Vertical", 15, 2, 16, 2),
    Sketcher.Constraint("Vertical", 14, 2, 17, 2),
    Sketcher.Constraint("Vertical", 19, 2, 20, 2),
    Sketcher.Constraint("Vertical", 18, 2, 21, 2),
    Sketcher.Constraint("Vertical", 23, 2, 24, 2),
    Sketcher.Constraint("Vertical", 22, 2, 25, 2),
    Sketcher.Constraint("Vertical", 27, 2, 28, 2),
    Sketcher.Constraint("Vertical", 26, 2, 29, 2),
    Sketcher.Constraint("Vertical", 31, 2, 32, 2),
    Sketcher.Constraint("Vertical", 30, 2, 33, 2),
    Sketcher.Constraint("Vertical", 35, 2, 36, 2),
    Sketcher.Constraint("Vertical", 34, 2, 37, 2),
    Sketcher.Constraint("Vertical", 39, 2, 40, 2),
    Sketcher.Constraint("Vertical", 38, 2, 41, 2),
    Sketcher.Constraint("Vertical", 43, 2, 44, 2),
    Sketcher.Constraint("Vertical", 42, 2, 45, 2),
    Sketcher.Constraint("Vertical", 47, 2, 48, 2),
    Sketcher.Constraint("Vertical", 46, 2, 49, 2),
    Sketcher.Constraint("Vertical", 51, 2, 52, 2),
    Sketcher.Constraint("Vertical", 50, 2, 53, 2),
    Sketcher.Constraint("Vertical", 55, 2, 56, 2),
    Sketcher.Constraint("Vertical", 54, 2, 57, 2),
    Sketcher.Constraint("Equal", 2, 4),
    Sketcher.Constraint("Equal", 6, 8),
    Sketcher.Constraint("Equal", 10, 12),
    Sketcher.Constraint("Equal", 14, 16),
    Sketcher.Constraint("Equal", 18, 20),
    Sketcher.Constraint("Equal", 22, 24),
    Sketcher.Constraint("Equal", 26, 28),
    Sketcher.Constraint("Equal", 30, 32),
    Sketcher.Constraint("Equal", 34, 36),
    Sketcher.Constraint("Equal", 38, 40),
    Sketcher.Constraint("Equal", 42, 44),
    Sketcher.Constraint("Equal", 46, 48),
    Sketcher.Constraint("Equal", 50, 52),
    Sketcher.Constraint("Equal", 54, 56),
    Sketcher.Constraint("DistanceX", 1, 1, 1, 2, Q("1.2 mm")),
    Sketcher.Constraint("DistanceY", 0, 2, 0, 1, Q("0.8 mm")),
    Sketcher.Constraint("DistanceY", 4, 2, 3, 2, Q("2 mm")),
    Sketcher.Constraint("DistanceY", 8, 2, 7, 2, Q("2 mm")),
    Sketcher.Constraint("DistanceY", 12, 2, 11, 2, Q("2 mm")),
    Sketcher.Constraint("DistanceY", 16, 2, 15, 2, Q("2 mm")),
    Sketcher.Constraint("DistanceY", 20, 2, 19, 2, Q("2 mm")),
    Sketcher.Constraint("DistanceY", 24, 2, 23, 2, Q("2 mm")),
    Sketcher.Constraint("DistanceY", 28, 2, 27, 2, Q("2 mm")),
    Sketcher.Constraint("DistanceY", 32, 2, 31, 2, Q("2 mm")),
    Sketcher.Constraint("DistanceY", 36, 2, 35, 2, Q("2 mm")),
    Sketcher.Constraint("DistanceY", 40, 2, 39, 2, Q("2 mm")),
    Sketcher.Constraint("DistanceY", 44, 2, 43, 2, Q("2 mm")),
    Sketcher.Constraint("DistanceY", 48, 2, 47, 2, Q("2 mm")),
    Sketcher.Constraint("DistanceY", 52, 2, 51, 2, Q("2 mm")),
    Sketcher.Constraint("DistanceY", 56, 2, 55, 2, Q("2 mm")),
    Sketcher.Constraint("DistanceX", 0, 2, -1, 1, Q("52.543466 mm")),
    Sketcher.Constraint("DistanceY", -1, 1, 0, 2, Q("13.744646 mm")),
])
pad3 = body.newObject("PartDesign::Pad", "Pad002")
pad3.Profile = sketch3
pad3.Length = 0.1

doc.recompute()
